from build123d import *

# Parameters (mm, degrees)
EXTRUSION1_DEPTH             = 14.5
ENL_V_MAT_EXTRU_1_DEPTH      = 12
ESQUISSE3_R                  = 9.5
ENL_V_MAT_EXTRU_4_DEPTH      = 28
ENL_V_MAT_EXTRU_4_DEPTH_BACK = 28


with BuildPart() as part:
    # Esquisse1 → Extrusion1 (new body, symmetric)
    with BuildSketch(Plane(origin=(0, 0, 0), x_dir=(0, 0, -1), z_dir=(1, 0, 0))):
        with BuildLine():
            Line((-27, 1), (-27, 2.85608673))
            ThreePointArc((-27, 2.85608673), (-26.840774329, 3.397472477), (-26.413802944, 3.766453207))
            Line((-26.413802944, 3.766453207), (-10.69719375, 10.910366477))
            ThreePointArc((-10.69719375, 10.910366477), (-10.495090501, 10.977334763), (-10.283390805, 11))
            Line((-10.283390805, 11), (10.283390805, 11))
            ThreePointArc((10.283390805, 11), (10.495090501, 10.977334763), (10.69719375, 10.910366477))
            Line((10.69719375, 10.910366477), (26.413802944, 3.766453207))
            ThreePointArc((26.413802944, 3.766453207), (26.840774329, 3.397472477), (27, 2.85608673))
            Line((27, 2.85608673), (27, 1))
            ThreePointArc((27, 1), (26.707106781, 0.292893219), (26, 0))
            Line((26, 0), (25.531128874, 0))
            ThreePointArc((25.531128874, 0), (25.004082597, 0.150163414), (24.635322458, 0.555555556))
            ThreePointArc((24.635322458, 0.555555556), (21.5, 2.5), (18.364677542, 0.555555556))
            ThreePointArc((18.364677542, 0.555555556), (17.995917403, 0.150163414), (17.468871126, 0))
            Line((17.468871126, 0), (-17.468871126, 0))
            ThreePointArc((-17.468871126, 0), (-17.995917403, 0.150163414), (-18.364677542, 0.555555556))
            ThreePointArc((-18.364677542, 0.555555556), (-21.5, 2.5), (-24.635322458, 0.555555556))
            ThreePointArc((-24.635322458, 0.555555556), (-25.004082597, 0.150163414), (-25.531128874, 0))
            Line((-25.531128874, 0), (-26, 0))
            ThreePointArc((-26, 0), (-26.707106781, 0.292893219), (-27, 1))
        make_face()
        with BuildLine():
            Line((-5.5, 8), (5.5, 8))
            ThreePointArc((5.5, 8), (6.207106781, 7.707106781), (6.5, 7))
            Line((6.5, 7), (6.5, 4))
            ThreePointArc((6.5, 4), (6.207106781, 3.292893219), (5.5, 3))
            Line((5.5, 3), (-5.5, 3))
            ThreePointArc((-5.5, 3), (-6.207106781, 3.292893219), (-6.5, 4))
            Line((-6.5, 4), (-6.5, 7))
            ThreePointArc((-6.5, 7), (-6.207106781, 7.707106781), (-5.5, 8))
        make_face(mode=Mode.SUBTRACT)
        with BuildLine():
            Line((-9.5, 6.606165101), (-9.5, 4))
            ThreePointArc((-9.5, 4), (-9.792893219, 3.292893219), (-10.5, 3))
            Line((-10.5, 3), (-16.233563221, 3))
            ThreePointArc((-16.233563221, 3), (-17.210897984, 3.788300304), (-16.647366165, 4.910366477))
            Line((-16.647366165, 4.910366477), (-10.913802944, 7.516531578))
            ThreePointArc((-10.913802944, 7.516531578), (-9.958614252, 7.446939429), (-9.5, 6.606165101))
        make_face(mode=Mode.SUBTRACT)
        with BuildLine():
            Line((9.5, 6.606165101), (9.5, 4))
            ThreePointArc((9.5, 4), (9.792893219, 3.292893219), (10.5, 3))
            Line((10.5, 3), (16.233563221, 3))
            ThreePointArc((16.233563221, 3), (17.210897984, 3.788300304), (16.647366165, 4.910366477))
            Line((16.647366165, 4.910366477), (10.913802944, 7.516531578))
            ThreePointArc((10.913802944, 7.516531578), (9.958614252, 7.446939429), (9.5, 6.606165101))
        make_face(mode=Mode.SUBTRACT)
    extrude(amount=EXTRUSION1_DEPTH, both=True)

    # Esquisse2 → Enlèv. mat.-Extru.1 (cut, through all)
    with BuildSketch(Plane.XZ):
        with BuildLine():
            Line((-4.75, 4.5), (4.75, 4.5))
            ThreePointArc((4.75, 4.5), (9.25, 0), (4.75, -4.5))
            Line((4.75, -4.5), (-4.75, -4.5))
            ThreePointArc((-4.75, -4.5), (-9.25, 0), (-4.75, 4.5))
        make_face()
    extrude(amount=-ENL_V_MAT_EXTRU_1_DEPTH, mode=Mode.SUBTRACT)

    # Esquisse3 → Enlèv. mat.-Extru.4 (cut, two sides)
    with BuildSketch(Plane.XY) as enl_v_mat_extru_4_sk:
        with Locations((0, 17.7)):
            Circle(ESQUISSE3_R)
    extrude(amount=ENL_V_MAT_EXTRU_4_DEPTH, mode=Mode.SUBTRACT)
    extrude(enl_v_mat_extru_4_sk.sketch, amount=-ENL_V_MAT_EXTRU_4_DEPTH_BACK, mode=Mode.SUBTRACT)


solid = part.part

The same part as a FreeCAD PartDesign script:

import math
import FreeCAD as App
import Part
import Sketcher

V = App.Vector

doc = App.newDocument("Part")
body = doc.addObject("PartDesign::Body", "Body")

sketch1 = body.newObject("Sketcher::SketchObject", "Sketch")
sketch1.AttachmentSupport = (doc.getObject("YZ_Plane"), [""])
sketch1.MapMode = "FlatFace"
sketch1.addGeometry([
    Part.LineSegment(V(2.86, 27, 0), V(1, 27, 0)),
    Part.ArcOfCircle(Part.Circle(V(1, 26, 0), V(0, 0, 1), 1), math.radians(90), math.radians(180)),
    Part.LineSegment(V(0, 26, 0), V(0, 25.53, 0)),
    Part.ArcOfCircle(Part.Circle(V(1, 25.53, 0), V(0, 0, 1), 1), math.radians(180), math.radians(244)),
    Part.ArcOfCircle(Part.Circle(V(-1, 21.5, 0), V(0, 0, 1), 3.5), math.radians(-64), math.radians(64)),
    Part.ArcOfCircle(Part.Circle(V(1, 17.47, 0), V(0, 0, 1), 1), math.radians(116), math.radians(180)),
    Part.LineSegment(V(0, 17.47, 0), V(0, -17.47, 0)),
    Part.ArcOfCircle(Part.Circle(V(1, -17.47, 0), V(0, 0, 1), 1), math.radians(180), math.radians(244)),
    Part.ArcOfCircle(Part.Circle(V(-1, -21.5, 0), V(0, 0, 1), 3.5), math.radians(-64), math.radians(64)),
    Part.ArcOfCircle(Part.Circle(V(1, -25.53, 0), V(0, 0, 1), 1), math.radians(116), math.radians(180)),
    Part.LineSegment(V(0, -25.53, 0), V(0, -26, 0)),
    Part.ArcOfCircle(Part.Circle(V(1, -26, 0), V(0, 0, 1), 1), math.radians(-180), math.radians(-90)),
    Part.LineSegment(V(1, -27, 0), V(2.86, -27, 0)),
    Part.ArcOfCircle(Part.Circle(V(2.86, -26, 0), V(0, 0, 1), 1), math.radians(-90), math.radians(-24)),
    Part.LineSegment(V(3.77, -26.41, 0), V(10.91, -10.7, 0)),
    Part.ArcOfCircle(Part.Circle(V(10, -10.28, 0), V(0, 0, 1), 1), math.radians(-24), math.radians(0)),
    Part.LineSegment(V(11, -10.28, 0), V(11, 10.28, 0)),
    Part.ArcOfCircle(Part.Circle(V(10, 10.28, 0), V(0, 0, 1), 1), math.radians(0), math.radians(24)),
    Part.LineSegment(V(10.91, 10.7, 0), V(3.77, 26.41, 0)),
    Part.ArcOfCircle(Part.Circle(V(2.86, 26, 0), V(0, 0, 1), 1), math.radians(24), math.radians(90)),
    Part.ArcOfCircle(Part.Circle(V(6.61, -10.5, 0), V(0, 0, 1), 1), math.radians(-24), math.radians(90)),
    Part.LineSegment(V(7.52, -10.91, 0), V(4.91, -16.65, 0)),
    Part.ArcOfCircle(Part.Circle(V(4, -16.23, 0), V(0, 0, 1), 1), math.radians(180), math.radians(336)),
    Part.LineSegment(V(3, -16.23, 0), V(3, -10.5, 0)),
    Part.ArcOfCircle(Part.Circle(V(4, -10.5, 0), V(0, 0, 1), 1), math.radians(90), math.radians(180)),
    Part.LineSegment(V(4, -9.5, 0), V(6.61, -9.5, 0)),
    Part.LineSegment(V(6.61, 9.5, 0), V(4, 9.5, 0)),
    Part.ArcOfCircle(Part.Circle(V(4, 10.5, 0), V(0, 0, 1), 1), math.radians(-180), math.radians(-90)),
    Part.LineSegment(V(3, 10.5, 0), V(3, 16.23, 0)),
    Part.ArcOfCircle(Part.Circle(V(4, 16.23, 0), V(0, 0, 1), 1), math.radians(24), math.radians(180)),
    Part.LineSegment(V(4.91, 16.65, 0), V(7.52, 10.91, 0)),
    Part.ArcOfCircle(Part.Circle(V(6.61, 10.5, 0), V(0, 0, 1), 1), math.radians(-90), math.radians(24)),
    Part.LineSegment(V(8, 5.5, 0), V(8, -5.5, 0)),
    Part.ArcOfCircle(Part.Circle(V(7, -5.5, 0), V(0, 0, 1), 1), math.radians(-90), math.radians(0)),
    Part.LineSegment(V(7, -6.5, 0), V(4, -6.5, 0)),
    Part.ArcOfCircle(Part.Circle(V(4, -5.5, 0), V(0, 0, 1), 1), math.radians(-180), math.radians(-90)),
    Part.LineSegment(V(3, -5.5, 0), V(3, 5.5, 0)),
    Part.ArcOfCircle(Part.Circle(V(4, 5.5, 0), V(0, 0, 1), 1), math.radians(90), math.radians(180)),
    Part.LineSegment(V(4, 6.5, 0), V(7, 6.5, 0)),
    Part.ArcOfCircle(Part.Circle(V(7, 5.5, 0), V(0, 0, 1), 1), math.radians(0), math.radians(90)),
], False)
sketch1.addConstraint([
    Sketcher.Constraint("Tangent", 0, 2, 1, 1),
    Sketcher.Constraint("Tangent", 1, 2, 2, 1),
    Sketcher.Constraint("Tangent", 2, 2, 3, 1),
    Sketcher.Constraint("Tangent", 3, 2, 4, 2),
    Sketcher.Constraint("Tangent", 4, 1, 5, 1),
    Sketcher.Constraint("Tangent", 5, 2, 6, 1),
    Sketcher.Constraint("Tangent", 6, 2, 7, 1),
    Sketcher.Constraint("Tangent", 7, 2, 8, 2),
    Sketcher.Constraint("Tangent", 8, 1, 9, 1),
    Sketcher.Constraint("Tangent", 9, 2, 10, 1),
    Sketcher.Constraint("Tangent", 10, 2, 11, 1),
    Sketcher.Constraint("Tangent", 11, 2, 12, 1),
    Sketcher.Constraint("Tangent", 12, 2, 13, 1),
    Sketcher.Constraint("Tangent", 13, 2, 14, 1),
    Sketcher.Constraint("Tangent", 14, 2, 15, 1),
    Sketcher.Constraint("Tangent", 15, 2, 16, 1),
    Sketcher.Constraint("Tangent", 16, 2, 17, 1),
    Sketcher.Constraint("Tangent", 17, 2, 18, 1),
    Sketcher.Constraint("Tangent", 18, 2, 19, 1),
    Sketcher.Constraint("Tangent", 19, 2, 0, 1),
    Sketcher.Constraint("Tangent", 20, 1, 21, 1),
    Sketcher.Constraint("Tangent", 21, 2, 22, 2),
    Sketcher.Constraint("Tangent", 22, 1, 23, 1),
    Sketcher.Constraint("Tangent", 23, 2, 24, 2),
    Sketcher.Constraint("Tangent", 24, 1, 25, 1),
    Sketcher.Constraint("Tangent", 25, 2, 20, 2),
    Sketcher.Constraint("Tangent", 26, 2, 27, 2),
    Sketcher.Constraint("Tangent", 27, 1, 28, 1),
    Sketcher.Constraint("Tangent", 28, 2, 29, 2),
    Sketcher.Constraint("Tangent", 29, 1, 30, 1),
    Sketcher.Constraint("Tangent", 30, 2, 31, 2),
    Sketcher.Constraint("Tangent", 31, 1, 26, 1),
    Sketcher.Constraint("Tangent", 32, 2, 33, 2),
    Sketcher.Constraint("Tangent", 33, 1, 34, 1),
    Sketcher.Constraint("Tangent", 34, 2, 35, 2),
    Sketcher.Constraint("Tangent", 35, 1, 36, 1),
    Sketcher.Constraint("Tangent", 36, 2, 37, 2),
    Sketcher.Constraint("Tangent", 37, 1, 38, 1),
    Sketcher.Constraint("Tangent", 38, 2, 39, 2),
    Sketcher.Constraint("Tangent", 39, 1, 32, 1),
    Sketcher.Constraint("Horizontal", 0),
    Sketcher.Constraint("Vertical", 2),
    Sketcher.Constraint("Vertical", 6),
    Sketcher.Constraint("Vertical", 10),
    Sketcher.Constraint("Horizontal", 12),
    Sketcher.Constraint("Vertical", 16),
    Sketcher.Constraint("Vertical", 23),
    Sketcher.Constraint("Horizontal", 25),
    Sketcher.Constraint("Horizontal", 26),
    Sketcher.Constraint("Vertical", 28),
    Sketcher.Constraint("Vertical", 32),
    Sketcher.Constraint("Horizontal", 34),
    Sketcher.Constraint("Vertical", 36),
    Sketcher.Constraint("Horizontal", 38),
    Sketcher.Constraint("Equal", 1, 3),
    Sketcher.Constraint("Equal", 3, 5),
    Sketcher.Constraint("Equal", 5, 7),
    Sketcher.Constraint("Equal", 4, 8),
    Sketcher.Constraint("Equal", 7, 9),
    Sketcher.Constraint("Equal", 9, 11),
    Sketcher.Constraint("Equal", 11, 13),
    Sketcher.Constraint("Equal", 13, 15),
    Sketcher.Constraint("Equal", 15, 17),
    Sketcher.Constraint("Equal", 17, 19),
    Sketcher.Constraint("Equal", 19, 20),
    Sketcher.Constraint("Equal", 20, 22),
    Sketcher.Constraint("Equal", 22, 24),
    Sketcher.Constraint("Equal", 24, 27),
    Sketcher.Constraint("Equal", 27, 29),
    Sketcher.Constraint("Equal", 29, 31),
    Sketcher.Constraint("Equal", 31, 33),
    Sketcher.Constraint("Equal", 33, 35),
    Sketcher.Constraint("Equal", 35, 37),
    Sketcher.Constraint("Equal", 37, 39),
    Sketcher.Constraint("Symmetric", 5, 2, 6, 2, -1, 1),
    Sketcher.Constraint("Symmetric", 2, 2, 9, 2, -1, 1),
    Sketcher.Constraint("Symmetric", 1, 3, 11, 3, -1),
    Sketcher.Constraint("Symmetric", 24, 3, 27, 3, -1),
    Sketcher.Constraint("Symmetric", 14, 2, 17, 2, -1),
    Sketcher.Constraint("Symmetric", 21, 2, 29, 1, -1),
    Sketcher.Constraint("Parallel", 14, 21),
    Sketcher.Constraint("Vertical", 29, 3, 35, 3),
    Sketcher.Constraint("Radius", 1, 1.0),
    Sketcher.Constraint("Radius", 4, 3.5),
    Sketcher.Constraint("DistanceX", 34, 2, 34, 1, 3.0),
    Sketcher.Constraint("DistanceY", 32, 2, 32, 1, 11.0),
    Sketcher.Constraint("DistanceY", -1, 1, 1, 3, 26.0),
    Sketcher.Constraint("DistanceX", 4, 3, -1, 1, 1.0),
    Sketcher.Constraint("DistanceX", -1, 1, 15, 3, 10.0),
    Sketcher.Constraint("DistanceX", -1, 1, 22, 3, 4.0),
    Sketcher.Constraint("DistanceY", -1, 1, 4, 3, 21.5),
    Sketcher.Constraint("DistanceY", 20, 3, -1, 1, 10.5),
    Sketcher.Constraint("DistanceY", 33, 3, -1, 1, 5.5),
    Sketcher.Constraint("DistanceY", 16, 1, 16, 2, 20.566782),
    Sketcher.Constraint("DistanceX", 0, 2, 0, 1, 1.856087),
    Sketcher.Constraint("DistanceX", 25, 1, 25, 2, 2.606165),
])
pad1 = body.newObject("PartDesign::Pad", "Pad")
pad1.Profile = sketch1
pad1.Length = 29
pad1.Midplane = True

sketch2 = body.newObject("Sketcher::SketchObject", "Sketch001")
sketch2.AttachmentSupport = (doc.getObject("XZ_Plane"), [""])
sketch2.MapMode = "FlatFace"
sketch2.addGeometry([
    Part.LineSegment(V(4.8, 4.5, 0), V(-4.8, 4.5, 0)),
    Part.ArcOfCircle(Part.Circle(V(-4.8, 0, 0), V(0, 0, 1), 4.5), math.radians(90), math.radians(270)),
    Part.LineSegment(V(-4.8, -4.5, 0), V(4.8, -4.5, 0)),
    Part.ArcOfCircle(Part.Circle(V(4.8, 0, 0), V(0, 0, 1), 4.5), math.radians(-90), math.radians(90)),
], False)
sketch2.addConstraint([
    Sketcher.Constraint("Tangent", 0, 2, 1, 1),
    Sketcher.Constraint("Tangent", 1, 2, 2, 1),
    Sketcher.Constraint("Tangent", 2, 2, 3, 1),
    Sketcher.Constraint("Tangent", 3, 2, 0, 1),
    Sketcher.Constraint("Horizontal", 0),
    Sketcher.Constraint("Horizontal", 2),
    Sketcher.Constraint("Symmetric", 1, 3, 3, 3, -1, 1),
    Sketcher.Constraint("Radius", 1, 4.5),
    Sketcher.Constraint("DistanceX", 0, 2, 0, 1, 9.5),
])
pocket1 = body.newObject("PartDesign::Pocket", "Pocket")
pocket1.Profile = sketch2
pocket1.Type = "ThroughAll"

sketch3 = body.newObject("Sketcher::SketchObject", "Sketch002")
sketch3.AttachmentSupport = (doc.getObject("XY_Plane"), [""])
sketch3.MapMode = "FlatFace"
sketch3.addGeometry(Part.Circle(V(0, 18, 0), V(0, 0, 1), 10), False)
sketch3.addConstraint([
    Sketcher.Constraint("PointOnObject", 0, 3, -2),
    Sketcher.Constraint("Diameter", 0, 19.0),
    Sketcher.Constraint("DistanceY", -1, 1, 0, 3, 17.7),
])
pocket2 = body.newObject("PartDesign::Pocket", "Pocket001")
pocket2.Profile = sketch3
pocket2.Type = "ThroughAll"
pocket2.Midplane = True

doc.recompute()
